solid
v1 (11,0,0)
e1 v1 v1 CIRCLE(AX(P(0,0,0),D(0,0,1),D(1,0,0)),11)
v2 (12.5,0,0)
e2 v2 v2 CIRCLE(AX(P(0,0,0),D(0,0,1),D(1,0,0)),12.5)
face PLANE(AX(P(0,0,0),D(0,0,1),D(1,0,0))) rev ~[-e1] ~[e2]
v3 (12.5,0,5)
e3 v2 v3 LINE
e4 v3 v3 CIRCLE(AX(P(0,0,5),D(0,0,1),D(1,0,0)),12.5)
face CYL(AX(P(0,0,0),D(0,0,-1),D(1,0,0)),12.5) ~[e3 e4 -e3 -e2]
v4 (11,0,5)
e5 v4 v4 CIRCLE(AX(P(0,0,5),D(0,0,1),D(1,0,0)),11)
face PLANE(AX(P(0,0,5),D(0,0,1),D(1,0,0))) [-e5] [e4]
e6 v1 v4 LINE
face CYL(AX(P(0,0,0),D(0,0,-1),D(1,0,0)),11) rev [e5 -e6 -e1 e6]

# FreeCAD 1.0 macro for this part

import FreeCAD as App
import Part
import Sketcher

doc = App.newDocument("Part")
body = doc.addObject("PartDesign::Body", "Body")

sketch1 = doc.addObject("Sketcher::SketchObject", "Sketch")
body.addObject(sketch1)
sketch1.AttachmentSupport = (doc.XY_Plane, [""])
sketch1.MapMode = "FlatFace"
sketch1.addGeometry([
    Part.Circle(App.Vector(0, 0, 0), App.Vector(0, 0, 1), 12),
    Part.Circle(App.Vector(0, 0, 0), App.Vector(0, 0, 1), 11),
], False)
sketch1.addConstraint([
    Sketcher.Constraint("Coincident", 0, 3, -1, 1),
    Sketcher.Constraint("Coincident", 1, 3, -1, 1),
    Sketcher.Constraint("Diameter", 0, 25.0),
    Sketcher.Constraint("Diameter", 1, 22.0),
])
pad1 = doc.addObject("PartDesign::Pad", "Pad")
body.addObject(pad1)
pad1.Profile = sketch1
pad1.Length = 5

doc.recompute()
